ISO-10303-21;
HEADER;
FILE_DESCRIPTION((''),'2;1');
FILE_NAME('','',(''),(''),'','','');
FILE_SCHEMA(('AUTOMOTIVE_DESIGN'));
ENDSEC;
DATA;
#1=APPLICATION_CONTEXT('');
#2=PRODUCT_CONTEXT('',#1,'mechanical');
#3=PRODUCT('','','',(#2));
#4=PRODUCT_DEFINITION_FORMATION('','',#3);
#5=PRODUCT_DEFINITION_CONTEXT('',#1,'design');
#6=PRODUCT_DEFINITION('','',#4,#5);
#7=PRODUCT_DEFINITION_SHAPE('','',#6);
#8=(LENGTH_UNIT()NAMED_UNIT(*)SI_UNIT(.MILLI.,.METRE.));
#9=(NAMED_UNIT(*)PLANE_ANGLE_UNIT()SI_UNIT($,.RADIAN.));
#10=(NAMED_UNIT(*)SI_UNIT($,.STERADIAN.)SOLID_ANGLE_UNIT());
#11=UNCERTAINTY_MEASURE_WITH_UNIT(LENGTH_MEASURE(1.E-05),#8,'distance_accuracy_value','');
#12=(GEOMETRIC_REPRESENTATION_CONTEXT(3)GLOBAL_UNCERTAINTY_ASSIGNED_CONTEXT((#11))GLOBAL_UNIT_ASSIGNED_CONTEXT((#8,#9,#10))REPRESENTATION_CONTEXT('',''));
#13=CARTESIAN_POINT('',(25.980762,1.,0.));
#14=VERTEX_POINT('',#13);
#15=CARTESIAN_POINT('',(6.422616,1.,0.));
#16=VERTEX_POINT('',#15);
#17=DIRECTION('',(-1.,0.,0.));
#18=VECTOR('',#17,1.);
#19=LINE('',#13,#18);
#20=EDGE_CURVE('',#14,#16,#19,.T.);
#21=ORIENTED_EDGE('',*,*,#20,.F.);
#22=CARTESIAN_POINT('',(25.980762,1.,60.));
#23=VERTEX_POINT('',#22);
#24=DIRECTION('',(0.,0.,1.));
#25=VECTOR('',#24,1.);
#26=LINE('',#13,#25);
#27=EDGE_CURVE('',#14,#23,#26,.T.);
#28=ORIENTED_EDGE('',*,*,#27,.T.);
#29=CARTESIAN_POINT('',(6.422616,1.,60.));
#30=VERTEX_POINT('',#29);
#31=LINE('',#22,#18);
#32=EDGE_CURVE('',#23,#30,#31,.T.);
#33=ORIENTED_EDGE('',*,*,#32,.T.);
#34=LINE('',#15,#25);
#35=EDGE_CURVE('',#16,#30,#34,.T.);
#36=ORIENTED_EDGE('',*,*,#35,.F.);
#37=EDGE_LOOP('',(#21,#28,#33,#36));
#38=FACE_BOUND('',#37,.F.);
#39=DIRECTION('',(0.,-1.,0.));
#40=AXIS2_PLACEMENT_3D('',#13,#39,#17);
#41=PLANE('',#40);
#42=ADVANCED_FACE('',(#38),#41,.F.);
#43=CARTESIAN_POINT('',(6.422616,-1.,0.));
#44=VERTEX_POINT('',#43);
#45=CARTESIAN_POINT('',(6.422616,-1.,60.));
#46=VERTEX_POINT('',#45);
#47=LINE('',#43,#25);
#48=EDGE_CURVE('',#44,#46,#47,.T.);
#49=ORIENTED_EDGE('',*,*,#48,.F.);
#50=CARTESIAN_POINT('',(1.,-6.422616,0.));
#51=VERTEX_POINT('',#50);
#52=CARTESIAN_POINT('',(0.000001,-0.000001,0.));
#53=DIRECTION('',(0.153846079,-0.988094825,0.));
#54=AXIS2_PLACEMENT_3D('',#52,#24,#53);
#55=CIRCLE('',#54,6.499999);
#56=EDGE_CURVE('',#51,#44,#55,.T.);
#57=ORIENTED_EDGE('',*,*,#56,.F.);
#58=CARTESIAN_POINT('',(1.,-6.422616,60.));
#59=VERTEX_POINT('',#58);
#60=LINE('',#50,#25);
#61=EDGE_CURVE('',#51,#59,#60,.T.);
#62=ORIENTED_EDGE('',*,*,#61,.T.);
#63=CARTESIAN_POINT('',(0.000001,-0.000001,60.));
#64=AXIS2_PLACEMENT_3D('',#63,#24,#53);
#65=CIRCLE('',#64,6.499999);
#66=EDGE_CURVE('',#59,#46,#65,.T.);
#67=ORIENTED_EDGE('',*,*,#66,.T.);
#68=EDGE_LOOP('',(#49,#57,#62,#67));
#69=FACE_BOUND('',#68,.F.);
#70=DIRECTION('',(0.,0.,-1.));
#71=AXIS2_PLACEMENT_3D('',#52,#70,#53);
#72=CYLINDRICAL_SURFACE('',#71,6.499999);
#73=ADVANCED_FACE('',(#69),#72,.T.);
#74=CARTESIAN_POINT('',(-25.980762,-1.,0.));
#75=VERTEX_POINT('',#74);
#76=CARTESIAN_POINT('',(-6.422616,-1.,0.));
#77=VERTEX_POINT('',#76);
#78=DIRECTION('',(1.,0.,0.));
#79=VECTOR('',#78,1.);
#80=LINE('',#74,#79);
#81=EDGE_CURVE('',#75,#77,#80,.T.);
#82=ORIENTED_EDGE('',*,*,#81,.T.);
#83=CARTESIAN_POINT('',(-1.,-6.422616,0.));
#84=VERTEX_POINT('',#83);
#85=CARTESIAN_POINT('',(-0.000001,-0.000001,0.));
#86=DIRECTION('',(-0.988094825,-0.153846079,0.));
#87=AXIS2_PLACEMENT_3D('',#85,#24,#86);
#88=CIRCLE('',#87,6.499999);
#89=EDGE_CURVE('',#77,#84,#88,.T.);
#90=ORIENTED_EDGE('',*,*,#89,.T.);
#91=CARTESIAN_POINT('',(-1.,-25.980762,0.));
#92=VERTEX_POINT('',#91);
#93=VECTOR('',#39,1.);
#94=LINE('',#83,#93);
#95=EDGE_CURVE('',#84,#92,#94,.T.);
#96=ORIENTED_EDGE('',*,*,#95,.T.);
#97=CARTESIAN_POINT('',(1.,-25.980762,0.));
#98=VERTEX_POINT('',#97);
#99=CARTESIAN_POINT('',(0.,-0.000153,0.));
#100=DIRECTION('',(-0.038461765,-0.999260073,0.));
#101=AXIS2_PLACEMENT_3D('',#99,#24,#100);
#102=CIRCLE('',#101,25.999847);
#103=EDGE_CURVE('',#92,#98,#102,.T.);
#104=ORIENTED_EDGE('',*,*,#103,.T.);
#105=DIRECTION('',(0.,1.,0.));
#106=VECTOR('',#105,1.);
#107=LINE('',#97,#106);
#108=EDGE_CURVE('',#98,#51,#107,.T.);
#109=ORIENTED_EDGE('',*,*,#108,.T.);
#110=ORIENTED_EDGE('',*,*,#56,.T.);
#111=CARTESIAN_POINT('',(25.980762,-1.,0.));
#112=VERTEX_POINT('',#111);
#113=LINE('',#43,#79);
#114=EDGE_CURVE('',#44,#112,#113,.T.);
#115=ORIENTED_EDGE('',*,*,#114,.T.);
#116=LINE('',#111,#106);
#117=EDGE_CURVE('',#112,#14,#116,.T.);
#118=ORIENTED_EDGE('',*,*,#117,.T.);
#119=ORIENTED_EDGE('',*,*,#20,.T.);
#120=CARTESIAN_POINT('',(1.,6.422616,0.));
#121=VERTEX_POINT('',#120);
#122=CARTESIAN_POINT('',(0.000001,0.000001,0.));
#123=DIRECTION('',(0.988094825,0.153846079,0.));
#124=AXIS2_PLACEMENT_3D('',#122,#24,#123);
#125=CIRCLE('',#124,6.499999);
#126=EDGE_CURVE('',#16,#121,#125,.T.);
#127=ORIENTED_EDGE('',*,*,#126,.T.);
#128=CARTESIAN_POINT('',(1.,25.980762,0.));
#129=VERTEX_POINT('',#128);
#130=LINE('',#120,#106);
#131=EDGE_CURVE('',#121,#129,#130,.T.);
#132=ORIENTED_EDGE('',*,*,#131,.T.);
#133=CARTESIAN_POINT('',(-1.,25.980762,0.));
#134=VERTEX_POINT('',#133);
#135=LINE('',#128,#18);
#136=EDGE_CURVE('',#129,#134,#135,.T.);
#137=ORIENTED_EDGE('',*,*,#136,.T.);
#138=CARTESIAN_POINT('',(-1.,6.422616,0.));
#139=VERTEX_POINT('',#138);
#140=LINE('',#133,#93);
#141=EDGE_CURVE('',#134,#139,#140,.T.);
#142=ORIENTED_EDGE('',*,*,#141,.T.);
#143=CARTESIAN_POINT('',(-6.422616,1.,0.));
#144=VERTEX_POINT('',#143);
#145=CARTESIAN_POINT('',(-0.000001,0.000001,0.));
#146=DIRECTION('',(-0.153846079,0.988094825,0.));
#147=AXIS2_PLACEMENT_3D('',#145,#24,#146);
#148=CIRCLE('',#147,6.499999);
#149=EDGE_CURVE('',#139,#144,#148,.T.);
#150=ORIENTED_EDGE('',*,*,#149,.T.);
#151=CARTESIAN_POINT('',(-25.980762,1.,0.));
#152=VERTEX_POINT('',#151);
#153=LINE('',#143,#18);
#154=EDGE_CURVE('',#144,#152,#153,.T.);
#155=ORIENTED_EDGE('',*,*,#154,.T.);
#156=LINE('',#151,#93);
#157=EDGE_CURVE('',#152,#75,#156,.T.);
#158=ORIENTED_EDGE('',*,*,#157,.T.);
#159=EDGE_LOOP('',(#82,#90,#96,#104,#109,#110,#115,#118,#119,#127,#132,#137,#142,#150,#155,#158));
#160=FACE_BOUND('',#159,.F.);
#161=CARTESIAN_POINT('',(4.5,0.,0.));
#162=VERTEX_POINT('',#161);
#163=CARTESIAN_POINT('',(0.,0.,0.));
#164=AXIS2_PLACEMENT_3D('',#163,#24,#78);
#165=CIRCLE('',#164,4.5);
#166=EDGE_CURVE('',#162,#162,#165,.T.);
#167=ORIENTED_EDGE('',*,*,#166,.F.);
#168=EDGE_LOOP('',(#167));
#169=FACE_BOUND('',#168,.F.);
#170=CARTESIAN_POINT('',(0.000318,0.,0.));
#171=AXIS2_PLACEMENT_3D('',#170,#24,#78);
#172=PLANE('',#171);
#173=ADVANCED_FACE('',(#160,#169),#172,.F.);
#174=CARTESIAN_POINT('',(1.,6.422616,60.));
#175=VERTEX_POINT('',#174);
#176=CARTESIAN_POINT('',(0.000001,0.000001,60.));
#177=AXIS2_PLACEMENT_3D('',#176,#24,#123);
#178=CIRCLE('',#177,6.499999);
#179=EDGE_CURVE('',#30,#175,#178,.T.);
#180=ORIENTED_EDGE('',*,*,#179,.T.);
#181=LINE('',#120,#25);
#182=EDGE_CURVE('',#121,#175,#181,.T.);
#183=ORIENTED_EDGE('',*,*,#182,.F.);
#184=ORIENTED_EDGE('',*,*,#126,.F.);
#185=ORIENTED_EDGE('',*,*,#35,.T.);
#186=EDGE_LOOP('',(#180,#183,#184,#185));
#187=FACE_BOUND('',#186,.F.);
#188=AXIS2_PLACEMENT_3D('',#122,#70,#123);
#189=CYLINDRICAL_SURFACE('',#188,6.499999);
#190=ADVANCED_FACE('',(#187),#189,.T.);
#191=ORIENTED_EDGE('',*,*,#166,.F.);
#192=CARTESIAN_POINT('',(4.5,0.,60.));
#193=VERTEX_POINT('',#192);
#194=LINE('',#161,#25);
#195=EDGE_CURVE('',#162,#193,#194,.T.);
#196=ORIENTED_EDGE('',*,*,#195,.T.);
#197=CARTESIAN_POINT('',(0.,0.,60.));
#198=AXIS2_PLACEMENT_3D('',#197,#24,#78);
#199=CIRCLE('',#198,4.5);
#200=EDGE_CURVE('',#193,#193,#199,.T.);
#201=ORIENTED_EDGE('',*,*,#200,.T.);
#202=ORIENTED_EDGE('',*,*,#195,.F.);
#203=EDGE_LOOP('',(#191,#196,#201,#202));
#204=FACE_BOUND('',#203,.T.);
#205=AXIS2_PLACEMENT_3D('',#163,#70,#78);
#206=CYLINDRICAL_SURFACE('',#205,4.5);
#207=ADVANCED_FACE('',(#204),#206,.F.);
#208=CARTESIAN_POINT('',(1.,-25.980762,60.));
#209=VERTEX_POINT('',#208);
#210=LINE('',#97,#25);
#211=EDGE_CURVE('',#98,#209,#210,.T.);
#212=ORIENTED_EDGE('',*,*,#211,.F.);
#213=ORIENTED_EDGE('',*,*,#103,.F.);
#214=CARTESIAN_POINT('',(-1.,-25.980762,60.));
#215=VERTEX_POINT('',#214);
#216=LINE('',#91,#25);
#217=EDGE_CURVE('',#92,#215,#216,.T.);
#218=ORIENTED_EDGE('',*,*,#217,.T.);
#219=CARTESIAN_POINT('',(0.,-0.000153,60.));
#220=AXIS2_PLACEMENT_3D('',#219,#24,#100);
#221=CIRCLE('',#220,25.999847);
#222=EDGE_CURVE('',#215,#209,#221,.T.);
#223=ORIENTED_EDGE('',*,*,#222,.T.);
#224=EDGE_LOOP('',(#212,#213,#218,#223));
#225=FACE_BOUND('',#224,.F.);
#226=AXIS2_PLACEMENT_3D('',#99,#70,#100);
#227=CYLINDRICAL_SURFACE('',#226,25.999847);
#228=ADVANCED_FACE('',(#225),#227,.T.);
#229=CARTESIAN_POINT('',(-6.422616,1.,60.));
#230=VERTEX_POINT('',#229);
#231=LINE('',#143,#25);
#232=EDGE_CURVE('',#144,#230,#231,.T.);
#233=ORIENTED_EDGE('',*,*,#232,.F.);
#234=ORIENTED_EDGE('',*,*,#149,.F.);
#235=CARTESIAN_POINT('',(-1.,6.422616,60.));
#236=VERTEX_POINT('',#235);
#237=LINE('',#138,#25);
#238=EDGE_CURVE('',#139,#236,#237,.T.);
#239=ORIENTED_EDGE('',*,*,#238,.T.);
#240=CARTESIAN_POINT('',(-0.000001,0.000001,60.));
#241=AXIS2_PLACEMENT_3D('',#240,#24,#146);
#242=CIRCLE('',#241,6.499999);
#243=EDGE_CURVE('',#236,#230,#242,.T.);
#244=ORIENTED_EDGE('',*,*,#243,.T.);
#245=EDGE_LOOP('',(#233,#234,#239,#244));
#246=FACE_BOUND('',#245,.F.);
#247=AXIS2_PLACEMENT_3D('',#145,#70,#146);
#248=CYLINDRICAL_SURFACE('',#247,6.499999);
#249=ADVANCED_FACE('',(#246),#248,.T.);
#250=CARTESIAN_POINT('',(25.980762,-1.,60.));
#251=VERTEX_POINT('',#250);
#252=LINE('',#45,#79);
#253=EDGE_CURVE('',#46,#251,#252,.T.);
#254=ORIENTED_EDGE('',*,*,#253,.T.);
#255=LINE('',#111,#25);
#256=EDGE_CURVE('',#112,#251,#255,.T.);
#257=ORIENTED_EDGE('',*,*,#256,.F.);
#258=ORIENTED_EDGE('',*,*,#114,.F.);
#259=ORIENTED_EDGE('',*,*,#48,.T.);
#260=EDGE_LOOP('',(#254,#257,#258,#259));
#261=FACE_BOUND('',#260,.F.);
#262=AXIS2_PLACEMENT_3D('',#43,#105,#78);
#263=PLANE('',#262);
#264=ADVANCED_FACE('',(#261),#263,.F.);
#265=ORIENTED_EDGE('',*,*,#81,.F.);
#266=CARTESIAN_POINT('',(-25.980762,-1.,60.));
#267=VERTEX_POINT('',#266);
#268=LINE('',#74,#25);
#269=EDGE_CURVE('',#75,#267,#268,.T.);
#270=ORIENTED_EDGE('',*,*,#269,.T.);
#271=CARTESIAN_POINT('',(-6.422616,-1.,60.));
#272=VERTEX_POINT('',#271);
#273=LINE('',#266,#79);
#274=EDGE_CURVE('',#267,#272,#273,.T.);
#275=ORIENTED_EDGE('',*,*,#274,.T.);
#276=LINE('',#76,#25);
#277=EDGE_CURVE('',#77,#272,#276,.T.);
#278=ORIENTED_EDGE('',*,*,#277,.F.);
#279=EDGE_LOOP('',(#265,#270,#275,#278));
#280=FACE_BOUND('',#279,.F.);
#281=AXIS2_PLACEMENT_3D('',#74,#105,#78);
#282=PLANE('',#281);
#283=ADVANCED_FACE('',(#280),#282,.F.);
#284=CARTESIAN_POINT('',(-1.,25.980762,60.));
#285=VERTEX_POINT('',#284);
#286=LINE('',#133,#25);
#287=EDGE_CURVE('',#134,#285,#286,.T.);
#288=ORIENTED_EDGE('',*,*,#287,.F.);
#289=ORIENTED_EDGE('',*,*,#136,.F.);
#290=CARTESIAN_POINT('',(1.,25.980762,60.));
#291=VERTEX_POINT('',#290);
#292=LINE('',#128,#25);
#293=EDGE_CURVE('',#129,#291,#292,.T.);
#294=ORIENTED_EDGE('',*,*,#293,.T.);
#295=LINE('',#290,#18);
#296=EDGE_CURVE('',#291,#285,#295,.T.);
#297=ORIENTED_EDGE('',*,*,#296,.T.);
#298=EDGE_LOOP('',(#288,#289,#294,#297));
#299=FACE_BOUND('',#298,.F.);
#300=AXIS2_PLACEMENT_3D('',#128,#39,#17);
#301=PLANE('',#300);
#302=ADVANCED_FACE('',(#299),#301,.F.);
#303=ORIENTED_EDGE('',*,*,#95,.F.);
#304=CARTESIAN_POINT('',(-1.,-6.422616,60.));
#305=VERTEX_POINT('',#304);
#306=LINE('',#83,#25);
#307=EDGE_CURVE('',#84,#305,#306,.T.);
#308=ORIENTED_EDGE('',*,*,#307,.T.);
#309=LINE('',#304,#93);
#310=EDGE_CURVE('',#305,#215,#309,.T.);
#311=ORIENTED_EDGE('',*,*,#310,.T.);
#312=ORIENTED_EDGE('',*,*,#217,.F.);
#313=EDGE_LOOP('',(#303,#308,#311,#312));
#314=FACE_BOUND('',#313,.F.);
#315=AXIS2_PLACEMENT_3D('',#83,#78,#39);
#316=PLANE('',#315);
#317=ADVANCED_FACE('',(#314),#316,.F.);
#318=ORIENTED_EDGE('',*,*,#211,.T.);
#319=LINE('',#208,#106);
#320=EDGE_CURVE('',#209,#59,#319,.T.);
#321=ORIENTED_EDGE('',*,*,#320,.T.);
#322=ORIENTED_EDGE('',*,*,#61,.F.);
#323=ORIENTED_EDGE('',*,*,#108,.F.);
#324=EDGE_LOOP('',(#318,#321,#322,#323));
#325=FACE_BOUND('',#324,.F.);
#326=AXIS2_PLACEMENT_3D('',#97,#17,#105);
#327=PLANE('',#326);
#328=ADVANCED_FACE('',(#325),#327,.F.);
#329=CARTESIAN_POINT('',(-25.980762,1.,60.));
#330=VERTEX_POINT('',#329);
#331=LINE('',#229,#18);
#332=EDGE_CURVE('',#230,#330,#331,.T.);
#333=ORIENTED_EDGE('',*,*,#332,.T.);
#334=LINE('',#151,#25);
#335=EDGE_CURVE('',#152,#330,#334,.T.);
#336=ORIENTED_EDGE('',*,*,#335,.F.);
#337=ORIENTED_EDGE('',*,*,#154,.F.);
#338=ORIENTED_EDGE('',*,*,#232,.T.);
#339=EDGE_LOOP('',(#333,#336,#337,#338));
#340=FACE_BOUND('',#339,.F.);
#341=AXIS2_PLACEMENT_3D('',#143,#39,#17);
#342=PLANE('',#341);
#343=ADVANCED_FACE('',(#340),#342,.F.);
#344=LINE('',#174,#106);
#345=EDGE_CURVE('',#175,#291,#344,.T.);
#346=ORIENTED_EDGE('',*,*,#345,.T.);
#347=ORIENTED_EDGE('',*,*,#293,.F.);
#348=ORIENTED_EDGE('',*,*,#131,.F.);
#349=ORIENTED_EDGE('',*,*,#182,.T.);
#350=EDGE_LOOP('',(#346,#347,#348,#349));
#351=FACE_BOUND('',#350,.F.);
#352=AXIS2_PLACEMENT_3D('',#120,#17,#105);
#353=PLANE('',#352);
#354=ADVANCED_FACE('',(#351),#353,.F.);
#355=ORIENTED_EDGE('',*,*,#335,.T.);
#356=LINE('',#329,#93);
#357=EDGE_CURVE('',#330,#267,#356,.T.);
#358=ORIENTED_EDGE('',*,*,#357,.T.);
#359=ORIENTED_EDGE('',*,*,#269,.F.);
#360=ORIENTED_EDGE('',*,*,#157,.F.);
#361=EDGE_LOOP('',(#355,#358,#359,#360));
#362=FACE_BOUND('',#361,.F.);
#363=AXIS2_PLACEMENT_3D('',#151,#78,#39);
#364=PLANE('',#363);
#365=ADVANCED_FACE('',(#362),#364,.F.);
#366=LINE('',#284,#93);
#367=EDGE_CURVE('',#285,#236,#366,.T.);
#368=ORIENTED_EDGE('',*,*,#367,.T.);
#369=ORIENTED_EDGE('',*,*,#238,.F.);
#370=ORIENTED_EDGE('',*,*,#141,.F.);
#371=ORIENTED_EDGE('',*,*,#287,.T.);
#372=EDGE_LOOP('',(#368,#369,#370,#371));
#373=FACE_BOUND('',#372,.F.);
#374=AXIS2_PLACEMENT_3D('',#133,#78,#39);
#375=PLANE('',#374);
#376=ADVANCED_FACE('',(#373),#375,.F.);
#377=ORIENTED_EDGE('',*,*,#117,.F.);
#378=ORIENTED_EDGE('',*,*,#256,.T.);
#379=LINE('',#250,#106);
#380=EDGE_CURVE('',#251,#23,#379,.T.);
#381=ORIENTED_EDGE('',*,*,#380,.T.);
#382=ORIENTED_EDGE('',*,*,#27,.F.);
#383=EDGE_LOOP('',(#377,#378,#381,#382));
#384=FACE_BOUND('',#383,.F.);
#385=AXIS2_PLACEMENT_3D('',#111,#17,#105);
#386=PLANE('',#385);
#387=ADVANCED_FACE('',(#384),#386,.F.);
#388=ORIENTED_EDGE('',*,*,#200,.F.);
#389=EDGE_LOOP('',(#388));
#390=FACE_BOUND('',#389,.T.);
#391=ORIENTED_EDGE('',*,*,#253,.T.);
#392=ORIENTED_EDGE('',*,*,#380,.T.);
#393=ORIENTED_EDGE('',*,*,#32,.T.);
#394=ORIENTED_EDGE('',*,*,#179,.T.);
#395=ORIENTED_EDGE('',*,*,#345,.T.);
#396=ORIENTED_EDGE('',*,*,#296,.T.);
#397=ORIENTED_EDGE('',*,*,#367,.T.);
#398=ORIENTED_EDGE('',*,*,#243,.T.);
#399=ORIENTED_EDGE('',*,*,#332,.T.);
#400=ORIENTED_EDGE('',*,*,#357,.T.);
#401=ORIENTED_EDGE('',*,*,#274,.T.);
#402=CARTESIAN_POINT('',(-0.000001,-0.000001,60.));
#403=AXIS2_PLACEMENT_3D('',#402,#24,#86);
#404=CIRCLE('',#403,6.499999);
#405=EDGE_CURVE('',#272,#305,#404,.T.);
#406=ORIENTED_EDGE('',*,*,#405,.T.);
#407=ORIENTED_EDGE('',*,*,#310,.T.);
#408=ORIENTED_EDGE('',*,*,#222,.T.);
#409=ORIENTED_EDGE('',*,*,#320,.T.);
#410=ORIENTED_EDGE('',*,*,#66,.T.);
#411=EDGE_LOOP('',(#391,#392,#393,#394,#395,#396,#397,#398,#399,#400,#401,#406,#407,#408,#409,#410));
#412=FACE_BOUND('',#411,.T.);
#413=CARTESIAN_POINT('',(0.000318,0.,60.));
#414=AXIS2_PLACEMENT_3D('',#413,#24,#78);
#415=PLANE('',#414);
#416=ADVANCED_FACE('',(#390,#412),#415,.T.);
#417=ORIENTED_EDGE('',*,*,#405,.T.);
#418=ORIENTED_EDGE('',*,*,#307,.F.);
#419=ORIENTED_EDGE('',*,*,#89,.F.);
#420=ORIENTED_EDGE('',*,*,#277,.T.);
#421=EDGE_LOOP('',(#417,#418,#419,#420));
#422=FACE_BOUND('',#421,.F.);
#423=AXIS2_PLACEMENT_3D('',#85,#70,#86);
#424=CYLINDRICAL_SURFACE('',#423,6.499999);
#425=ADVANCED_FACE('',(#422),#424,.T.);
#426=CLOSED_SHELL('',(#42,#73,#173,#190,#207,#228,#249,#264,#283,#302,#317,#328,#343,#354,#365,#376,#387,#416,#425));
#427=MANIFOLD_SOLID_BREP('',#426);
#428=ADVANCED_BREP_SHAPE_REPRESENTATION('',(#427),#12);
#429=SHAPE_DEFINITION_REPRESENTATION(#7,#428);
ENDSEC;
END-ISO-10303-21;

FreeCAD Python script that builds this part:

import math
import FreeCAD as App
import Part
import Sketcher
from FreeCAD import Vector

doc = App.newDocument("Part")
body = doc.addObject("PartDesign::Body", "Body")

sketch1 = body.newObject("Sketcher::SketchObject", "Sketch")
sketch1.AttachmentSupport = (doc.getObject("XY_Plane"), [""])
sketch1.MapMode = "FlatFace"
sketch1.addGeometry(Part.ArcOfCircle(Part.Circle(Vector(0, 0, 0), Vector(0, 0, 1), 6.5), math.radians(9), math.radians(81)), False)
sketch1.addGeometry(Part.LineSegment(Vector(1, 6.4, 0), Vector(1, 26, 0)), False)
sketch1.addGeometry(Part.LineSegment(Vector(1, 26, 0), Vector(-1, 26, 0)), False)
sketch1.addGeometry(Part.LineSegment(Vector(-1, 26, 0), Vector(-1, 6.4, 0)), False)
sketch1.addGeometry(Part.ArcOfCircle(Part.Circle(Vector(0, 0, 0), Vector(0, 0, 1), 6.5), math.radians(99), math.radians(171)), False)
sketch1.addGeometry(Part.LineSegment(Vector(-6.4, 1, 0), Vector(-26, 1, 0)), False)
sketch1.addGeometry(Part.LineSegment(Vector(-26, 1, 0), Vector(-26, -1, 0)), False)
sketch1.addGeometry(Part.LineSegment(Vector(-26, -1, 0), Vector(-6.4, -1, 0)), False)
sketch1.addGeometry(Part.ArcOfCircle(Part.Circle(Vector(0, 0, 0), Vector(0, 0, 1), 6.5), math.radians(-171), math.radians(-99)), False)
sketch1.addGeometry(Part.LineSegment(Vector(-1, -6.4, 0), Vector(-1, -26, 0)), False)
sketch1.addGeometry(Part.ArcOfCircle(Part.Circle(Vector(0, 0, 0), Vector(0, 0, 1), 26), math.radians(-92.2), math.radians(-87.8)), False)
sketch1.addGeometry(Part.LineSegment(Vector(1, -26, 0), Vector(1, -6.4, 0)), False)
sketch1.addGeometry(Part.ArcOfCircle(Part.Circle(Vector(0, 0, 0), Vector(0, 0, 1), 6.5), math.radians(-81), math.radians(-9)), False)
sketch1.addGeometry(Part.LineSegment(Vector(6.4, -1, 0), Vector(26, -1, 0)), False)
sketch1.addGeometry(Part.LineSegment(Vector(26, -1, 0), Vector(26, 1, 0)), False)
sketch1.addGeometry(Part.LineSegment(Vector(26, 1, 0), Vector(6.4, 1, 0)), False)
sketch1.addGeometry(Part.Circle(Vector(0, 0, 0), Vector(0, 0, 1), 4.5), False)
sketch1.addConstraint(Sketcher.Constraint("Coincident", 0, 2, 1, 1))
sketch1.addConstraint(Sketcher.Constraint("Coincident", 1, 2, 2, 1))
sketch1.addConstraint(Sketcher.Constraint("Coincident", 2, 2, 3, 1))
sketch1.addConstraint(Sketcher.Constraint("Coincident", 3, 2, 4, 1))
sketch1.addConstraint(Sketcher.Constraint("Coincident", 4, 2, 5, 1))
sketch1.addConstraint(Sketcher.Constraint("Coincident", 5, 2, 6, 1))
sketch1.addConstraint(Sketcher.Constraint("Coincident", 6, 2, 7, 1))
sketch1.addConstraint(Sketcher.Constraint("Coincident", 7, 2, 8, 1))
sketch1.addConstraint(Sketcher.Constraint("Coincident", 8, 2, 9, 1))
sketch1.addConstraint(Sketcher.Constraint("Coincident", 9, 2, 10, 1))
sketch1.addConstraint(Sketcher.Constraint("Coincident", 10, 2, 11, 1))
sketch1.addConstraint(Sketcher.Constraint("Coincident", 11, 2, 12, 1))
sketch1.addConstraint(Sketcher.Constraint("Coincident", 12, 2, 13, 1))
sketch1.addConstraint(Sketcher.Constraint("Coincident", 13, 2, 14, 1))
sketch1.addConstraint(Sketcher.Constraint("Coincident", 14, 2, 15, 1))
sketch1.addConstraint(Sketcher.Constraint("Coincident", 15, 2, 0, 1))
sketch1.addConstraint(Sketcher.Constraint("Vertical", 1))
sketch1.addConstraint(Sketcher.Constraint("Horizontal", 2))
sketch1.addConstraint(Sketcher.Constraint("Vertical", 3))
sketch1.addConstraint(Sketcher.Constraint("Horizontal", 5))
sketch1.addConstraint(Sketcher.Constraint("Vertical", 6))
sketch1.addConstraint(Sketcher.Constraint("Horizontal", 7))
sketch1.addConstraint(Sketcher.Constraint("Vertical", 9))
sketch1.addConstraint(Sketcher.Constraint("Vertical", 11))
sketch1.addConstraint(Sketcher.Constraint("Horizontal", 13))
sketch1.addConstraint(Sketcher.Constraint("Vertical", 14))
sketch1.addConstraint(Sketcher.Constraint("Horizontal", 15))
sketch1.addConstraint(Sketcher.Constraint("Coincident", 0, 3, -1, 1))
sketch1.addConstraint(Sketcher.Constraint("Coincident", 4, 3, -1, 1))
sketch1.addConstraint(Sketcher.Constraint("Coincident", 8, 3, -1, 1))
sketch1.addConstraint(Sketcher.Constraint("Coincident", 12, 3, -1, 1))
sketch1.addConstraint(Sketcher.Constraint("Coincident", 16, 3, -1, 1))
sketch1.addConstraint(Sketcher.Constraint("Equal", 0, 4))
sketch1.addConstraint(Sketcher.Constraint("Equal", 4, 8))
sketch1.addConstraint(Sketcher.Constraint("Equal", 8, 12))
sketch1.addConstraint(Sketcher.Constraint("Symmetric", 1, 2, 9, 2, -1, 1))
sketch1.addConstraint(Sketcher.Constraint("Symmetric", 2, 2, 10, 2, -1, 1))
sketch1.addConstraint(Sketcher.Constraint("Symmetric", 5, 2, 13, 2, -1, 1))
sketch1.addConstraint(Sketcher.Constraint("PointOnObject", 10, 3, -2))
sketch1.addConstraint(Sketcher.Constraint("Horizontal", 7, 2, 12, 2))
sketch1.addConstraint(Sketcher.Constraint("Horizontal", 5, 2, 14, 2))
sketch1.addConstraint(Sketcher.Constraint("Equal", 15, 1))
sketch1.addConstraint(Sketcher.Constraint("Equal", 2, 6))
sketch1.addConstraint(Sketcher.Constraint("Diameter", 16, 9.0))
sketch1.addConstraint(Sketcher.Constraint("Radius", 0, 6.499999))
sketch1.addConstraint(Sketcher.Constraint("DistanceX", 2, 2, 2, 1, 2.0))
sketch1.addConstraint(Sketcher.Constraint("Radius", 10, 25.999847))
sketch1.addConstraint(Sketcher.Constraint("DistanceX", 5, 2, 5, 1, 19.558146))
pad1 = body.newObject("PartDesign::Pad", "Pad")
pad1.Profile = sketch1
pad1.Length = 60

doc.recompute()
